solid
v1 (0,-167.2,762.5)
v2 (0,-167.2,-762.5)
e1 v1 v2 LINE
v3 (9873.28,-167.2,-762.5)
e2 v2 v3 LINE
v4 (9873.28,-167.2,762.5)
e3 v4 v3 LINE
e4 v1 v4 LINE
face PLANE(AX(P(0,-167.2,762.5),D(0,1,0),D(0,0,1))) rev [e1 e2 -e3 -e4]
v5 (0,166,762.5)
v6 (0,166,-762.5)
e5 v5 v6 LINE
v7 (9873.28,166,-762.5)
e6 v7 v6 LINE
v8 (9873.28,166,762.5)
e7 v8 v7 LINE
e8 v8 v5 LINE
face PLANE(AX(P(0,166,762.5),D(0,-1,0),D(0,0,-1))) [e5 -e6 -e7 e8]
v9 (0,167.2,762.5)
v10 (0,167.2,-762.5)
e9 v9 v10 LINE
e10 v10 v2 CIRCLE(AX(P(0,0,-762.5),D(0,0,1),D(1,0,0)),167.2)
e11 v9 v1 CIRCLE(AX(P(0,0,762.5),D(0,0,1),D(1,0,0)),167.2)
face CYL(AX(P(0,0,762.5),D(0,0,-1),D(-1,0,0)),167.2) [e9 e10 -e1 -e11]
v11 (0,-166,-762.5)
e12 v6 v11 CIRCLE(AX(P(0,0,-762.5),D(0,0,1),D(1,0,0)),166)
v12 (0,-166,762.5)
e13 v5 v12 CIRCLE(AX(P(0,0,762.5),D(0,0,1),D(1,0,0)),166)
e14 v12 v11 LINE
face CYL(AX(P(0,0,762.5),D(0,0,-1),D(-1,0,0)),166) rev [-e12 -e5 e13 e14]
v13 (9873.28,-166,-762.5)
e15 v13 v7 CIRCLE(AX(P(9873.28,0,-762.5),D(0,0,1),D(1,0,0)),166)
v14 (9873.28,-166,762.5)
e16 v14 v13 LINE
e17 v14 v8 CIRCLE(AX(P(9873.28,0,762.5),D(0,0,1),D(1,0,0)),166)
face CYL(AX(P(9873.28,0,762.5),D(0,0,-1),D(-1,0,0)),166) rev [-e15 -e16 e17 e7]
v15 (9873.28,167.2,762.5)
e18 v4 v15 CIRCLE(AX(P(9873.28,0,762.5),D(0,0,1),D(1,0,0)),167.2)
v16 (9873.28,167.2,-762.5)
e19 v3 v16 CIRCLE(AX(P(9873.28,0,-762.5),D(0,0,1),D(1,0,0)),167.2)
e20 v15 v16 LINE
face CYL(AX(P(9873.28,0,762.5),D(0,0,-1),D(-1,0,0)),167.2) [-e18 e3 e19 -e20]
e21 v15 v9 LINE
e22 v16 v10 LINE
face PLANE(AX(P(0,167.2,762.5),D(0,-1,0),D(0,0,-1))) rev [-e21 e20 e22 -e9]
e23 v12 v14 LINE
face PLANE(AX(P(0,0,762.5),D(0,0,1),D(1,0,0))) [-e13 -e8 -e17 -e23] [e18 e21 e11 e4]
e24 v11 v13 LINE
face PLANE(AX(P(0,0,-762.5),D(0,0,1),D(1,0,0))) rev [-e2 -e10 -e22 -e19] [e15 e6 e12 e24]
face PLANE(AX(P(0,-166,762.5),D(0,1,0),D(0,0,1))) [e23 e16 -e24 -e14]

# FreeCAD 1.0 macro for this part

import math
import FreeCAD as App
import Part
import Sketcher

V = App.Vector
Q = App.Units.Quantity

doc = App.newDocument("Part")
body = doc.addObject("PartDesign::Body", "Body")

# Sketch on XY plane
sketch1 = body.newObject("Sketcher::SketchObject", "Sketch")
sketch1.AttachmentSupport = (doc.getObject("XY_Plane"), [""])
sketch1.MapMode = "FlatFace"
sketch1.addGeometry(Part.LineSegment(V(0, -167, 0), V(9873, -167, 0)), False)
sketch1.addGeometry(Part.ArcOfCircle(Part.Circle(V(9873, 0, 0), V(0, 0, 1), 167), math.radians(-90), math.radians(90)), False)
sketch1.addGeometry(Part.LineSegment(V(9873, 167, 0), V(0, 167, 0)), False)
sketch1.addGeometry(Part.ArcOfCircle(Part.Circle(V(0, 0, 0), V(0, 0, 1), 167), math.radians(90), math.radians(270)), False)
sketch1.addGeometry(Part.ArcOfCircle(Part.Circle(V(0, 0, 0), V(0, 0, 1), 166), math.radians(90), math.radians(270)), False)
sketch1.addGeometry(Part.LineSegment(V(0, 166, 0), V(9873, 166, 0)), False)
sketch1.addGeometry(Part.ArcOfCircle(Part.Circle(V(9873, 0, 0), V(0, 0, 1), 166), math.radians(-90), math.radians(90)), False)
sketch1.addGeometry(Part.LineSegment(V(9873, -166, 0), V(0, -166, 0)), False)
sketch1.addConstraint(Sketcher.Constraint("Tangent", 0, 2, 1, 1))
sketch1.addConstraint(Sketcher.Constraint("Tangent", 1, 2, 2, 1))
sketch1.addConstraint(Sketcher.Constraint("Tangent", 2, 2, 3, 1))
sketch1.addConstraint(Sketcher.Constraint("Tangent", 3, 2, 0, 1))
sketch1.addConstraint(Sketcher.Constraint("Tangent", 4, 1, 5, 1))
sketch1.addConstraint(Sketcher.Constraint("Tangent", 5, 2, 6, 2))
sketch1.addConstraint(Sketcher.Constraint("Tangent", 6, 1, 7, 1))
sketch1.addConstraint(Sketcher.Constraint("Tangent", 7, 2, 4, 2))
sketch1.addConstraint(Sketcher.Constraint("Horizontal", 0))
sketch1.addConstraint(Sketcher.Constraint("Horizontal", 2))
sketch1.addConstraint(Sketcher.Constraint("Horizontal", 5))
sketch1.addConstraint(Sketcher.Constraint("Horizontal", 7))
sketch1.addConstraint(Sketcher.Constraint("Coincident", 3, 3, -1, 1))
sketch1.addConstraint(Sketcher.Constraint("Coincident", 4, 3, -1, 1))
sketch1.addConstraint(Sketcher.Constraint("Vertical", 6, 3, 0, 2))
sketch1.addConstraint(Sketcher.Constraint("Radius", 4, Q("166 mm")))
sketch1.addConstraint(Sketcher.Constraint("Radius", 1, Q("167.2 mm")))
sketch1.addConstraint(Sketcher.Constraint("DistanceX", 0, 1, 0, 2, Q("9873.28 mm")))
pad1 = body.newObject("PartDesign::Pad", "Pad")
pad1.Profile = sketch1
pad1.Length = 1525
pad1.Midplane = True

doc.recompute()
